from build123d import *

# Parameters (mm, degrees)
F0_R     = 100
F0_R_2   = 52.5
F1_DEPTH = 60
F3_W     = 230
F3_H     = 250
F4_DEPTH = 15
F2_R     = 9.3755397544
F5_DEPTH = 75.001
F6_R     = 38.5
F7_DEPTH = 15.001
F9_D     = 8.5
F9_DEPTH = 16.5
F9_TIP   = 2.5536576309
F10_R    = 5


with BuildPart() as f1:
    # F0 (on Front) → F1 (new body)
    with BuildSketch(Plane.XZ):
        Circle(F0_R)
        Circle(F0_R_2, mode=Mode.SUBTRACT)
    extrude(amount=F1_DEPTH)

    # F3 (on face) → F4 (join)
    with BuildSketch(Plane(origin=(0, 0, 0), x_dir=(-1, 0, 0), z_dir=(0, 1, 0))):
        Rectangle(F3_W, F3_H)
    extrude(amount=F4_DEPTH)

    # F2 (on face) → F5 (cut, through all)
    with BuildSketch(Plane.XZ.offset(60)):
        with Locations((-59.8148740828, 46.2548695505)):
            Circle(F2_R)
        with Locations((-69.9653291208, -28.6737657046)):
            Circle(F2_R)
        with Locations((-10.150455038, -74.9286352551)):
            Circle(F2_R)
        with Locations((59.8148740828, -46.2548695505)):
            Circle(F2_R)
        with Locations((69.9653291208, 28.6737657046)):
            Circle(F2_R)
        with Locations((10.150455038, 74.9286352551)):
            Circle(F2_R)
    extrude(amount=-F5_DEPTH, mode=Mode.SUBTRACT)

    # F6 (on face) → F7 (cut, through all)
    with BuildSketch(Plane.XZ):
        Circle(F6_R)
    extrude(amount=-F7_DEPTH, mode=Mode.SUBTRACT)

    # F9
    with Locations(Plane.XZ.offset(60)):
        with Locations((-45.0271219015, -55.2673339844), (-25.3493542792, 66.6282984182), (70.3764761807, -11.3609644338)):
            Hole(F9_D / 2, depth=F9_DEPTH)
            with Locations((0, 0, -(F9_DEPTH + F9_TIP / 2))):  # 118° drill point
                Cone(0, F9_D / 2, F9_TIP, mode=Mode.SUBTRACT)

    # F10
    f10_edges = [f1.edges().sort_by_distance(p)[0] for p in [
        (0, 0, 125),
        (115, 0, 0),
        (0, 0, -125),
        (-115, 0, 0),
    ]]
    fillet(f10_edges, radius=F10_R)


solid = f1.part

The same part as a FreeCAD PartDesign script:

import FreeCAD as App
import Part
import Sketcher
Q = App.Units.Quantity


def edges_at(feature, points):
    """Names of the edges that pass closest to the given points."""
    edges = feature.Shape.Edges
    near = lambda p: min(range(len(edges)), key=lambda i: edges[i].distToShape(Part.Vertex(*p))[0])
    return sorted({f"Edge{near(p) + 1}" for p in points})

doc = App.newDocument("Part")
body = doc.addObject("PartDesign::Body", "Body")

sketch1 = doc.addObject("Sketcher::SketchObject", "Sketch")
body.addObject(sketch1)
sketch1.AttachmentSupport = (doc.XZ_Plane, [""])
sketch1.MapMode = "FlatFace"
sketch1.addGeometry(Part.Circle(App.Vector(0, 0, 0), App.Vector(0, 0, 1), 100), False)
sketch1.addGeometry(Part.Circle(App.Vector(0, 0, 0), App.Vector(0, 0, 1), 52), False)
sketch1.addConstraint(Sketcher.Constraint("Coincident", 0, 3, -1, 1))
sketch1.addConstraint(Sketcher.Constraint("Coincident", 1, 3, -1, 1))
sketch1.addConstraint(Sketcher.Constraint("Diameter", 0, Q("200 mm")))
sketch1.addConstraint(Sketcher.Constraint("Diameter", 1, Q("105 mm")))
pad1 = doc.addObject("PartDesign::Pad", "Pad")
body.addObject(pad1)
pad1.Profile = sketch1
pad1.Length = 60

sketch2 = doc.addObject("Sketcher::SketchObject", "Sketch001")
body.addObject(sketch2)
sketch2.AttachmentSupport = (doc.XZ_Plane, [""])
sketch2.MapMode = "FlatFace"
sketch2.addGeometry(Part.LineSegment(App.Vector(115, 125, 0), App.Vector(115, -125, 0)), False)
sketch2.addGeometry(Part.LineSegment(App.Vector(115, -125, 0), App.Vector(-115, -125, 0)), False)
sketch2.addGeometry(Part.LineSegment(App.Vector(-115, -125, 0), App.Vector(-115, 125, 0)), False)
sketch2.addGeometry(Part.LineSegment(App.Vector(-115, 125, 0), App.Vector(115, 125, 0)), False)
sketch2.addConstraint(Sketcher.Constraint("Coincident", 0, 2, 1, 1))
sketch2.addConstraint(Sketcher.Constraint("Coincident", 1, 2, 2, 1))
sketch2.addConstraint(Sketcher.Constraint("Coincident", 2, 2, 3, 1))
sketch2.addConstraint(Sketcher.Constraint("Coincident", 3, 2, 0, 1))
sketch2.addConstraint(Sketcher.Constraint("Vertical", 0))
sketch2.addConstraint(Sketcher.Constraint("Horizontal", 1))
sketch2.addConstraint(Sketcher.Constraint("Vertical", 2))
sketch2.addConstraint(Sketcher.Constraint("Horizontal", 3))
sketch2.addConstraint(Sketcher.Constraint("Symmetric", 0, 2, 2, 2, -1, 1))
sketch2.addConstraint(Sketcher.Constraint("DistanceX", 1, 2, 1, 1, Q("230 mm")))
sketch2.addConstraint(Sketcher.Constraint("DistanceY", 0, 2, 0, 1, Q("250 mm")))
pad2 = doc.addObject("PartDesign::Pad", "Pad001")
body.addObject(pad2)
pad2.Profile = sketch2
pad2.Length = 15
pad2.Reversed = True

sketch3 = doc.addObject("Sketcher::SketchObject", "Sketch002")
body.addObject(sketch3)
sketch3.AttachmentSupport = (doc.XZ_Plane, [""])
sketch3.MapMode = "FlatFace"
sketch3.AttachmentOffset = App.Placement(App.Vector(0, 0, 60), App.Rotation())
sketch3.addGeometry(Part.Circle(App.Vector(-60, 46, 0), App.Vector(0, 0, 1), 9), False)
sketch3.addGeometry(Part.Circle(App.Vector(-70, -29, 0), App.Vector(0, 0, 1), 9), False)
sketch3.addGeometry(Part.Circle(App.Vector(-10, -75, 0), App.Vector(0, 0, 1), 9), False)
sketch3.addGeometry(Part.Circle(App.Vector(60, -46, 0), App.Vector(0, 0, 1), 9), False)
sketch3.addGeometry(Part.Circle(App.Vector(70, 29, 0), App.Vector(0, 0, 1), 9), False)
sketch3.addGeometry(Part.Circle(App.Vector(10, 75, 0), App.Vector(0, 0, 1), 9), False)
sketch3.addConstraint(Sketcher.Constraint("Equal", 0, 1))
sketch3.addConstraint(Sketcher.Constraint("Equal", 1, 2))
sketch3.addConstraint(Sketcher.Constraint("Equal", 2, 3))
sketch3.addConstraint(Sketcher.Constraint("Equal", 3, 4))
sketch3.addConstraint(Sketcher.Constraint("Equal", 4, 5))
sketch3.addConstraint(Sketcher.Constraint("Symmetric", 0, 3, 3, 3, -1, 1))
sketch3.addConstraint(Sketcher.Constraint("Symmetric", 1, 3, 4, 3, -1, 1))
sketch3.addConstraint(Sketcher.Constraint("Symmetric", 2, 3, 5, 3, -1, 1))
sketch3.addConstraint(Sketcher.Constraint("Diameter", 0, Q("18.75108 mm")))
sketch3.addConstraint(Sketcher.Constraint("DistanceY", 2, 3, 4, 3, Q("103.602401 mm")))
sketch3.addConstraint(Sketcher.Constraint("DistanceY", -1, 1, 0, 3, Q("46.25487 mm")))
sketch3.addConstraint(Sketcher.Constraint("DistanceX", 1, 3, -1, 1, Q("69.965329 mm")))
sketch3.addConstraint(Sketcher.Constraint("DistanceY", 2, 3, 1, 3, Q("46.25487 mm")))
sketch3.addConstraint(Sketcher.Constraint("DistanceX", 0, 3, 2, 3, Q("49.664419 mm")))
sketch3.addConstraint(Sketcher.Constraint("DistanceX", 2, 3, 3, 3, Q("69.965329 mm")))
pocket1 = doc.addObject("PartDesign::Pocket", "Pocket")
body.addObject(pocket1)
pocket1.Profile = sketch3
pocket1.Type = "ThroughAll"

sketch4 = doc.addObject("Sketcher::SketchObject", "Sketch003")
body.addObject(sketch4)
sketch4.AttachmentSupport = (doc.XZ_Plane, [""])
sketch4.MapMode = "FlatFace"
sketch4.addGeometry(Part.Circle(App.Vector(0, 0, 0), App.Vector(0, 0, 1), 38), False)
sketch4.addConstraint(Sketcher.Constraint("Coincident", 0, 3, -1, 1))
sketch4.addConstraint(Sketcher.Constraint("Diameter", 0, Q("77 mm")))
pocket2 = doc.addObject("PartDesign::Pocket", "Pocket001")
body.addObject(pocket2)
pocket2.Profile = sketch4
pocket2.Type = "ThroughAll"

sketch5 = doc.addObject("Sketcher::SketchObject", "Sketch004")
body.addObject(sketch5)
sketch5.AttachmentSupport = (doc.XZ_Plane, [""])
sketch5.MapMode = "FlatFace"
sketch5.AttachmentOffset = App.Placement(App.Vector(0, 0, 60), App.Rotation())
sketch5.addGeometry(Part.Circle(App.Vector(-45, -55.3, 0), App.Vector(0, 0, 1), 4.2), False)
sketch5.addGeometry(Part.Circle(App.Vector(-25.3, 66.6, 0), App.Vector(0, 0, 1), 4.2), False)
sketch5.addGeometry(Part.Circle(App.Vector(70.4, -11.4, 0), App.Vector(0, 0, 1), 4.2), False)
sketch5.addConstraint(Sketcher.Constraint("Equal", 0, 1))
sketch5.addConstraint(Sketcher.Constraint("Equal", 1, 2))
sketch5.addConstraint(Sketcher.Constraint("Diameter", 0, Q("8.5 mm")))
sketch5.addConstraint(Sketcher.Constraint("DistanceY", -1, 1, 1, 3, Q("66.628298 mm")))
sketch5.addConstraint(Sketcher.Constraint("DistanceX", 0, 3, 2, 3, Q("115.403598 mm")))
sketch5.addConstraint(Sketcher.Constraint("DistanceX", 0, 3, -1, 1, Q("45.027122 mm")))
sketch5.addConstraint(Sketcher.Constraint("DistanceX", 1, 3, 2, 3, Q("95.72583 mm")))
sketch5.addConstraint(Sketcher.Constraint("DistanceY", 0, 3, 2, 3, Q("43.90637 mm")))
sketch5.addConstraint(Sketcher.Constraint("DistanceY", 0, 3, -1, 1, Q("55.267334 mm")))
doc.recompute()
hole = doc.addObject("PartDesign::Hole", "Hole")
body.addObject(hole)
hole.Profile = sketch5
hole.ThreadType = "None"
hole.Diameter = 8.5
hole.DepthType = "Dimension"
hole.Depth = 16.5
hole.DrillPoint = "Angled"
hole.DrillPointAngle = 118
doc.recompute()

fillet = doc.addObject("PartDesign::Fillet", "Fillet")
body.addObject(fillet)
fillet.Base = (hole, edges_at(hole, [
    (0, 0, 125),
    (115, 0, 0),
    (0, 0, -125),
    (-115, 0, 0),
]))
fillet.Radius = 5

doc.recompute()
